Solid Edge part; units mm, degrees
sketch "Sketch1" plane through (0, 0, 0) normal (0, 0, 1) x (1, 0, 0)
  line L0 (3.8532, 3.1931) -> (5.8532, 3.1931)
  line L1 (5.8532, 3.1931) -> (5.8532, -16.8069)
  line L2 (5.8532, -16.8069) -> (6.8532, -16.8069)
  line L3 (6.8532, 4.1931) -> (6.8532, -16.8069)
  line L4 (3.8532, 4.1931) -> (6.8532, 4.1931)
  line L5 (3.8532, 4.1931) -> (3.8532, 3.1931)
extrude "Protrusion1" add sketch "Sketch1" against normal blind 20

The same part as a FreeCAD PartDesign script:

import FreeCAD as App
import Part
import Sketcher

V = App.Vector
Q = App.Units.Quantity

doc = App.newDocument("Part")
body = doc.addObject("PartDesign::Body", "Body")

# Sketch on XY plane
sketch1 = body.newObject("Sketcher::SketchObject", "Sketch")
sketch1.AttachmentSupport = (doc.getObject("XY_Plane"), [""])
sketch1.MapMode = "FlatFace"
sketch1.addGeometry([
    Part.LineSegment(V(3.8532, 4.1931, 0), V(3.8532, 3.1931, 0)),  # 0
    Part.LineSegment(V(3.8532, 3.1931, 0), V(5.8532, 3.1931, 0)),  # 1
    Part.LineSegment(V(5.8532, 3.1931, 0), V(5.8532, -16.8069, 0)),  # 2
    Part.LineSegment(V(5.8532, -16.8069, 0), V(6.8532, -16.8069, 0)),  # 3
    Part.LineSegment(V(6.8532, -16.8069, 0), V(6.8532, 4.1931, 0)),  # 4
    Part.LineSegment(V(6.8532, 4.1931, 0), V(3.8532, 4.1931, 0)),  # 5
], False)
sketch1.addConstraint([
    Sketcher.Constraint("Coincident", 0, 2, 1, 1),
    Sketcher.Constraint("Coincident", 1, 2, 2, 1),
    Sketcher.Constraint("Coincident", 2, 2, 3, 1),
    Sketcher.Constraint("Coincident", 3, 2, 4, 1),
    Sketcher.Constraint("Coincident", 4, 2, 5, 1),
    Sketcher.Constraint("Coincident", 5, 2, 0, 1),
    Sketcher.Constraint("Vertical", 0),
    Sketcher.Constraint("Horizontal", 1),
    Sketcher.Constraint("Vertical", 2),
    Sketcher.Constraint("Horizontal", 3),
    Sketcher.Constraint("Vertical", 4),
    Sketcher.Constraint("Horizontal", 5),
    Sketcher.Constraint("Equal", 3, 0),
    Sketcher.Constraint("DistanceX", 1, 1, 1, 2, Q("2 mm")),
    Sketcher.Constraint("DistanceX", 3, 1, 3, 2, Q("1 mm")),
    Sketcher.Constraint("DistanceY", 2, 2, 2, 1, Q("20 mm")),
    Sketcher.Constraint("DistanceY", -1, 1, 0, 2, Q("3.193 mm")),
    Sketcher.Constraint("DistanceX", -1, 1, 0, 2, Q("3.8532 mm")),
])
pad1 = body.newObject("PartDesign::Pad", "Pad")
pad1.Profile = sketch1
pad1.Length = 20
pad1.Reversed = True

doc.recompute()
